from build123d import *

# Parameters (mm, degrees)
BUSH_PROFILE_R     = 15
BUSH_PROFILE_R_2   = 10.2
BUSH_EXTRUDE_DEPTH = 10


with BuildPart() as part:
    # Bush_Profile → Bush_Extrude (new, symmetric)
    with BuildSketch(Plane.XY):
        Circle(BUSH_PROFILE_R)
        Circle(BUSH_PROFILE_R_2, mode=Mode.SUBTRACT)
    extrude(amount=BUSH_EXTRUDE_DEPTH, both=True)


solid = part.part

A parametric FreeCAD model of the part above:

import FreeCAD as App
import Part
import Sketcher

V = App.Vector
Q = App.Units.Quantity

doc = App.newDocument("Part")
body = doc.addObject("PartDesign::Body", "Body")

sketch1 = doc.addObject("Sketcher::SketchObject", "Sketch")
body.addObject(sketch1)
sketch1.AttachmentSupport = (doc.XY_Plane, [""])
sketch1.MapMode = "FlatFace"
sketch1.addGeometry([
    Part.Circle(V(0, 0, 0), V(0, 0, 1), 15),
    Part.Circle(V(0, 0, 0), V(0, 0, 1), 10),
], False)
sketch1.addConstraint([
    Sketcher.Constraint("Coincident", 0, 3, -1, 1),
    Sketcher.Constraint("Coincident", 1, 3, -1, 1),
    Sketcher.Constraint("Diameter", 0, Q("30 mm")),
    Sketcher.Constraint("Diameter", 1, Q("20.4 mm")),
])
pad1 = doc.addObject("PartDesign::Pad", "Pad")
body.addObject(pad1)
pad1.Profile = sketch1
pad1.Length = 20
pad1.Midplane = True

doc.recompute()
